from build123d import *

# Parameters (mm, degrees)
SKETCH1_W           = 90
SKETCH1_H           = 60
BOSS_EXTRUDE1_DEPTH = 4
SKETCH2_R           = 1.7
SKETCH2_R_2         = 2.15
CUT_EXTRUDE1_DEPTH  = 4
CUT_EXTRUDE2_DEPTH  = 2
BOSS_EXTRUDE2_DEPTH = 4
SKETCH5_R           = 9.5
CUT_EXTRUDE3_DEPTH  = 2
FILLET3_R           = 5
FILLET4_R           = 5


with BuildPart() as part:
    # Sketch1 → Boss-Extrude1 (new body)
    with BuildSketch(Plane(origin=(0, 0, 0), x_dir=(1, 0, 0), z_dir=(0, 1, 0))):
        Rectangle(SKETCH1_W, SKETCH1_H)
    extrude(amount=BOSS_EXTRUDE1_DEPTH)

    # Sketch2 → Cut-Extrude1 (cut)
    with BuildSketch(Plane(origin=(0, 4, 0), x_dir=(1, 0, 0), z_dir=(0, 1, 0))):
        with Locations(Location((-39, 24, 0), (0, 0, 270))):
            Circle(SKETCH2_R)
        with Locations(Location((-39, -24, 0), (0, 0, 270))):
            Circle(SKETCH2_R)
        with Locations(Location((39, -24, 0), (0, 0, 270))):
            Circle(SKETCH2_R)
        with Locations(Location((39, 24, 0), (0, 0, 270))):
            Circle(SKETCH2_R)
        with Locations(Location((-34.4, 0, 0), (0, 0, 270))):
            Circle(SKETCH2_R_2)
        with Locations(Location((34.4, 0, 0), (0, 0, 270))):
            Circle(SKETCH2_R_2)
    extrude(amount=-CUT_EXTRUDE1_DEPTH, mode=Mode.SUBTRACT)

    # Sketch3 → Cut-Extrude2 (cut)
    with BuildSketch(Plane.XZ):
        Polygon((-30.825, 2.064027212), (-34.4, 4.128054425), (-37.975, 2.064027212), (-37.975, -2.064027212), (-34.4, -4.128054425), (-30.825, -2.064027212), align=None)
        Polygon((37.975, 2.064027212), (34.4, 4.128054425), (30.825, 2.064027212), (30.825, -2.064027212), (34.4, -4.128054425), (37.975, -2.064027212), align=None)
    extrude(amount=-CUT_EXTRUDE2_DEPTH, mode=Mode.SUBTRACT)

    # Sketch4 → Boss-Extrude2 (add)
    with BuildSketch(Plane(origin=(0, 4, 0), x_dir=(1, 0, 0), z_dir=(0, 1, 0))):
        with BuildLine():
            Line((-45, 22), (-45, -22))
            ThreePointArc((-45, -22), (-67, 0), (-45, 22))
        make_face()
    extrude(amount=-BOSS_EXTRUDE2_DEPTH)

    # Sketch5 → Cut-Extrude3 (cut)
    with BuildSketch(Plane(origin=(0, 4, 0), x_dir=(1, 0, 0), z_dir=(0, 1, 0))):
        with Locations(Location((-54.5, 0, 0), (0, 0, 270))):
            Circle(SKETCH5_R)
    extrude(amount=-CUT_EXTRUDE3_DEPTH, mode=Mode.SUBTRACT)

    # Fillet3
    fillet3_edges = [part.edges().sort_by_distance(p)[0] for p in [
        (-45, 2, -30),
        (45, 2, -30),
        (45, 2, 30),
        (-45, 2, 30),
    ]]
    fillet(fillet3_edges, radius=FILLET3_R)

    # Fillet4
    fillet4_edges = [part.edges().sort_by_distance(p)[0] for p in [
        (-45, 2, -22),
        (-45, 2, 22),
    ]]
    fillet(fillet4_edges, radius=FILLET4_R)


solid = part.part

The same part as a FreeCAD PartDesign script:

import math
import FreeCAD as App
import Part
import Sketcher
from FreeCAD import Vector
Q = App.Units.Quantity


def edges_at(feature, points):
    """Names of the edges that pass closest to the given points."""
    edges = feature.Shape.Edges
    near = lambda p: min(range(len(edges)), key=lambda i: edges[i].distToShape(Part.Vertex(*p))[0])
    return sorted({f"Edge{near(p) + 1}" for p in points})

doc = App.newDocument("Part")
body = doc.addObject("PartDesign::Body", "Body")

sketch1 = body.newObject("Sketcher::SketchObject", "Sketch")
sketch1.AttachmentSupport = (doc.getObject("XZ_Plane"), [""])
sketch1.MapMode = "FlatFace"
sketch1.addGeometry(Part.LineSegment(Vector(-45, -30, 0), Vector(-45, 30, 0)), False)
sketch1.addGeometry(Part.LineSegment(Vector(-45, 30, 0), Vector(45, 30, 0)), False)
sketch1.addGeometry(Part.LineSegment(Vector(45, 30, 0), Vector(45, -30, 0)), False)
sketch1.addGeometry(Part.LineSegment(Vector(45, -30, 0), Vector(-45, -30, 0)), False)
sketch1.addConstraint(Sketcher.Constraint("Coincident", 0, 2, 1, 1))
sketch1.addConstraint(Sketcher.Constraint("Coincident", 1, 2, 2, 1))
sketch1.addConstraint(Sketcher.Constraint("Coincident", 2, 2, 3, 1))
sketch1.addConstraint(Sketcher.Constraint("Coincident", 3, 2, 0, 1))
sketch1.addConstraint(Sketcher.Constraint("Vertical", 0))
sketch1.addConstraint(Sketcher.Constraint("Horizontal", 1))
sketch1.addConstraint(Sketcher.Constraint("Vertical", 2))
sketch1.addConstraint(Sketcher.Constraint("Horizontal", 3))
sketch1.addConstraint(Sketcher.Constraint("Symmetric", 0, 2, 2, 2, -1, 1))
sketch1.addConstraint(Sketcher.Constraint("DistanceX", 1, 1, 1, 2, Q("90 mm")))
sketch1.addConstraint(Sketcher.Constraint("DistanceY", 0, 1, 0, 2, Q("60 mm")))
pad1 = body.newObject("PartDesign::Pad", "Pad")
pad1.Profile = sketch1
pad1.Length = 4
pad1.Reversed = True

sketch2 = body.newObject("Sketcher::SketchObject", "Sketch001")
sketch2.AttachmentSupport = (doc.getObject("XZ_Plane"), [""])
sketch2.MapMode = "FlatFace"
sketch2.AttachmentOffset = App.Placement(Vector(0, 0, -4), App.Rotation())
sketch2.addGeometry(Part.Circle(Vector(-39, -24, 0), Vector(0, 0, 1), 1.7), False)
sketch2.addGeometry(Part.Circle(Vector(-39, 24, 0), Vector(0, 0, 1), 1.7), False)
sketch2.addGeometry(Part.Circle(Vector(39, 24, 0), Vector(0, 0, 1), 1.7), False)
sketch2.addGeometry(Part.Circle(Vector(39, -24, 0), Vector(0, 0, 1), 1.7), False)
sketch2.addGeometry(Part.Circle(Vector(-34.4, 0, 0), Vector(0, 0, 1), 2.1), False)
sketch2.addGeometry(Part.Circle(Vector(34.4, 0, 0), Vector(0, 0, 1), 2.1), False)
sketch2.addConstraint(Sketcher.Constraint("Equal", 0, 1))
sketch2.addConstraint(Sketcher.Constraint("Equal", 1, 2))
sketch2.addConstraint(Sketcher.Constraint("Equal", 2, 3))
sketch2.addConstraint(Sketcher.Constraint("Equal", 4, 5))
sketch2.addConstraint(Sketcher.Constraint("Symmetric", 0, 3, 2, 3, -1, 1))
sketch2.addConstraint(Sketcher.Constraint("Symmetric", 1, 3, 3, 3, -1, 1))
sketch2.addConstraint(Sketcher.Constraint("Symmetric", 4, 3, 5, 3, -1, 1))
sketch2.addConstraint(Sketcher.Constraint("Symmetric", 1, 3, 2, 3, -2))
sketch2.addConstraint(Sketcher.Constraint("PointOnObject", 4, 3, -1))
sketch2.addConstraint(Sketcher.Constraint("Diameter", 0, Q("3.4 mm")))
sketch2.addConstraint(Sketcher.Constraint("Diameter", 4, Q("4.3 mm")))
sketch2.addConstraint(Sketcher.Constraint("DistanceX", 0, 3, -1, 1, Q("39 mm")))
sketch2.addConstraint(Sketcher.Constraint("DistanceY", 0, 3, -1, 1, Q("24 mm")))
sketch2.addConstraint(Sketcher.Constraint("DistanceX", 4, 3, -1, 1, Q("34.4 mm")))
pocket1 = body.newObject("PartDesign::Pocket", "Pocket")
pocket1.Profile = sketch2
pocket1.Length = 4
pocket1.Reversed = True

sketch3 = body.newObject("Sketcher::SketchObject", "Sketch002")
sketch3.AttachmentSupport = (doc.getObject("XZ_Plane"), [""])
sketch3.MapMode = "FlatFace"
sketch3.addGeometry(Part.LineSegment(Vector(-30.8, 2.1, 0), Vector(-34.4, 4.1, 0)), False)
sketch3.addGeometry(Part.LineSegment(Vector(-34.4, 4.1, 0), Vector(-38, 2.1, 0)), False)
sketch3.addGeometry(Part.LineSegment(Vector(-38, 2.1, 0), Vector(-38, -2.1, 0)), False)
sketch3.addGeometry(Part.LineSegment(Vector(-38, -2.1, 0), Vector(-34.4, -4.1, 0)), False)
sketch3.addGeometry(Part.LineSegment(Vector(-34.4, -4.1, 0), Vector(-30.8, -2.1, 0)), False)
sketch3.addGeometry(Part.LineSegment(Vector(-30.8, -2.1, 0), Vector(-30.8, 2.1, 0)), False)
sketch3.addGeometry(Part.LineSegment(Vector(38, 2.1, 0), Vector(34.4, 4.1, 0)), False)
sketch3.addGeometry(Part.LineSegment(Vector(34.4, 4.1, 0), Vector(30.8, 2.1, 0)), False)
sketch3.addGeometry(Part.LineSegment(Vector(30.8, 2.1, 0), Vector(30.8, -2.1, 0)), False)
sketch3.addGeometry(Part.LineSegment(Vector(30.8, -2.1, 0), Vector(34.4, -4.1, 0)), False)
sketch3.addGeometry(Part.LineSegment(Vector(34.4, -4.1, 0), Vector(38, -2.1, 0)), False)
sketch3.addGeometry(Part.LineSegment(Vector(38, -2.1, 0), Vector(38, 2.1, 0)), False)
sketch3.addConstraint(Sketcher.Constraint("Coincident", 0, 2, 1, 1))
sketch3.addConstraint(Sketcher.Constraint("Coincident", 1, 2, 2, 1))
sketch3.addConstraint(Sketcher.Constraint("Coincident", 2, 2, 3, 1))
sketch3.addConstraint(Sketcher.Constraint("Coincident", 3, 2, 4, 1))
sketch3.addConstraint(Sketcher.Constraint("Coincident", 4, 2, 5, 1))
sketch3.addConstraint(Sketcher.Constraint("Coincident", 5, 2, 0, 1))
sketch3.addConstraint(Sketcher.Constraint("Coincident", 6, 2, 7, 1))
sketch3.addConstraint(Sketcher.Constraint("Coincident", 7, 2, 8, 1))
sketch3.addConstraint(Sketcher.Constraint("Coincident", 8, 2, 9, 1))
sketch3.addConstraint(Sketcher.Constraint("Coincident", 9, 2, 10, 1))
sketch3.addConstraint(Sketcher.Constraint("Coincident", 10, 2, 11, 1))
sketch3.addConstraint(Sketcher.Constraint("Coincident", 11, 2, 6, 1))
sketch3.addConstraint(Sketcher.Constraint("Vertical", 2))
sketch3.addConstraint(Sketcher.Constraint("Vertical", 5))
sketch3.addConstraint(Sketcher.Constraint("Vertical", 8))
sketch3.addConstraint(Sketcher.Constraint("Vertical", 11))
sketch3.addConstraint(Sketcher.Constraint("Symmetric", 3, 2, 6, 2, -1, 1))
sketch3.addConstraint(Sketcher.Constraint("Symmetric", 4, 2, 7, 2, -1, 1))
sketch3.addConstraint(Sketcher.Constraint("Symmetric", 0, 2, 9, 2, -1, 1))
sketch3.addConstraint(Sketcher.Constraint("Symmetric", 1, 2, 10, 2, -1, 1))
sketch3.addConstraint(Sketcher.Constraint("Symmetric", 0, 2, 6, 2, -2))
sketch3.addConstraint(Sketcher.Constraint("Parallel", 0, 3))
sketch3.addConstraint(Sketcher.Constraint("Parallel", 1, 4))
sketch3.addConstraint(Sketcher.Constraint("Parallel", 3, 6))
sketch3.addConstraint(Sketcher.Constraint("Parallel", 6, 9))
sketch3.addConstraint(Sketcher.Constraint("Horizontal", 2, 2, 4, 2))
sketch3.addConstraint(Sketcher.Constraint("Horizontal", 1, 2, 5, 2))
sketch3.addConstraint(Sketcher.Constraint("Angle", 0, Q("150 deg")))
sketch3.addConstraint(Sketcher.Constraint("DistanceX", 0, 2, -1, 1, Q("34.4 mm")))
sketch3.addConstraint(Sketcher.Constraint("DistanceX", 2, 2, 4, 2, Q("7.15 mm")))
sketch3.addConstraint(Sketcher.Constraint("DistanceY", 2, 2, 2, 1, Q("4.128054 mm")))
pocket2 = body.newObject("PartDesign::Pocket", "Pocket001")
pocket2.Profile = sketch3
pocket2.Length = 2

sketch4 = body.newObject("Sketcher::SketchObject", "Sketch003")
sketch4.AttachmentSupport = (doc.getObject("XZ_Plane"), [""])
sketch4.MapMode = "FlatFace"
sketch4.AttachmentOffset = App.Placement(Vector(0, 0, -4), App.Rotation())
sketch4.addGeometry(Part.LineSegment(Vector(-45, 22, 0), Vector(-45, -22, 0)), False)
sketch4.addGeometry(Part.ArcOfCircle(Part.Circle(Vector(-45, 0, 0), Vector(0, 0, 1), 22), math.radians(90), math.radians(270)), False)
sketch4.addConstraint(Sketcher.Constraint("Coincident", 0, 1, 1, 1))
sketch4.addConstraint(Sketcher.Constraint("Coincident", 1, 2, 0, 2))
sketch4.addConstraint(Sketcher.Constraint("Vertical", 0))
sketch4.addConstraint(Sketcher.Constraint("PointOnObject", 1, 3, -1))
sketch4.addConstraint(Sketcher.Constraint("Vertical", 1, 3, 0, 1))
sketch4.addConstraint(Sketcher.Constraint("Radius", 1, Q("22 mm")))
sketch4.addConstraint(Sketcher.Constraint("DistanceX", 1, 3, -1, 1, Q("45 mm")))
pad2 = body.newObject("PartDesign::Pad", "Pad001")
pad2.Profile = sketch4
pad2.Length = 4

sketch5 = body.newObject("Sketcher::SketchObject", "Sketch004")
sketch5.AttachmentSupport = (doc.getObject("XZ_Plane"), [""])
sketch5.MapMode = "FlatFace"
sketch5.AttachmentOffset = App.Placement(Vector(0, 0, -4), App.Rotation())
sketch5.addGeometry(Part.Circle(Vector(-54, 0, 0), Vector(0, 0, 1), 10), False)
sketch5.addConstraint(Sketcher.Constraint("PointOnObject", 0, 3, -1))
sketch5.addConstraint(Sketcher.Constraint("Diameter", 0, Q("19 mm")))
sketch5.addConstraint(Sketcher.Constraint("DistanceX", 0, 3, -1, 1, Q("54.5 mm")))
pocket3 = body.newObject("PartDesign::Pocket", "Pocket002")
pocket3.Profile = sketch5
pocket3.Length = 2
pocket3.Reversed = True
doc.recompute()

fillet = body.newObject("PartDesign::Fillet", "Fillet")
fillet.Base = (pocket3, edges_at(pocket3, [
    (-45, 2, -30),
    (45, 2, -30),
    (45, 2, 30),
    (-45, 2, 30),
]))
fillet.Radius = 5
doc.recompute()

fillet2 = body.newObject("PartDesign::Fillet", "Fillet001")
fillet2.Base = (fillet, edges_at(fillet, [(-45, 2, -22), (-45, 2, 22)]))
fillet2.Radius = 5

doc.recompute()
